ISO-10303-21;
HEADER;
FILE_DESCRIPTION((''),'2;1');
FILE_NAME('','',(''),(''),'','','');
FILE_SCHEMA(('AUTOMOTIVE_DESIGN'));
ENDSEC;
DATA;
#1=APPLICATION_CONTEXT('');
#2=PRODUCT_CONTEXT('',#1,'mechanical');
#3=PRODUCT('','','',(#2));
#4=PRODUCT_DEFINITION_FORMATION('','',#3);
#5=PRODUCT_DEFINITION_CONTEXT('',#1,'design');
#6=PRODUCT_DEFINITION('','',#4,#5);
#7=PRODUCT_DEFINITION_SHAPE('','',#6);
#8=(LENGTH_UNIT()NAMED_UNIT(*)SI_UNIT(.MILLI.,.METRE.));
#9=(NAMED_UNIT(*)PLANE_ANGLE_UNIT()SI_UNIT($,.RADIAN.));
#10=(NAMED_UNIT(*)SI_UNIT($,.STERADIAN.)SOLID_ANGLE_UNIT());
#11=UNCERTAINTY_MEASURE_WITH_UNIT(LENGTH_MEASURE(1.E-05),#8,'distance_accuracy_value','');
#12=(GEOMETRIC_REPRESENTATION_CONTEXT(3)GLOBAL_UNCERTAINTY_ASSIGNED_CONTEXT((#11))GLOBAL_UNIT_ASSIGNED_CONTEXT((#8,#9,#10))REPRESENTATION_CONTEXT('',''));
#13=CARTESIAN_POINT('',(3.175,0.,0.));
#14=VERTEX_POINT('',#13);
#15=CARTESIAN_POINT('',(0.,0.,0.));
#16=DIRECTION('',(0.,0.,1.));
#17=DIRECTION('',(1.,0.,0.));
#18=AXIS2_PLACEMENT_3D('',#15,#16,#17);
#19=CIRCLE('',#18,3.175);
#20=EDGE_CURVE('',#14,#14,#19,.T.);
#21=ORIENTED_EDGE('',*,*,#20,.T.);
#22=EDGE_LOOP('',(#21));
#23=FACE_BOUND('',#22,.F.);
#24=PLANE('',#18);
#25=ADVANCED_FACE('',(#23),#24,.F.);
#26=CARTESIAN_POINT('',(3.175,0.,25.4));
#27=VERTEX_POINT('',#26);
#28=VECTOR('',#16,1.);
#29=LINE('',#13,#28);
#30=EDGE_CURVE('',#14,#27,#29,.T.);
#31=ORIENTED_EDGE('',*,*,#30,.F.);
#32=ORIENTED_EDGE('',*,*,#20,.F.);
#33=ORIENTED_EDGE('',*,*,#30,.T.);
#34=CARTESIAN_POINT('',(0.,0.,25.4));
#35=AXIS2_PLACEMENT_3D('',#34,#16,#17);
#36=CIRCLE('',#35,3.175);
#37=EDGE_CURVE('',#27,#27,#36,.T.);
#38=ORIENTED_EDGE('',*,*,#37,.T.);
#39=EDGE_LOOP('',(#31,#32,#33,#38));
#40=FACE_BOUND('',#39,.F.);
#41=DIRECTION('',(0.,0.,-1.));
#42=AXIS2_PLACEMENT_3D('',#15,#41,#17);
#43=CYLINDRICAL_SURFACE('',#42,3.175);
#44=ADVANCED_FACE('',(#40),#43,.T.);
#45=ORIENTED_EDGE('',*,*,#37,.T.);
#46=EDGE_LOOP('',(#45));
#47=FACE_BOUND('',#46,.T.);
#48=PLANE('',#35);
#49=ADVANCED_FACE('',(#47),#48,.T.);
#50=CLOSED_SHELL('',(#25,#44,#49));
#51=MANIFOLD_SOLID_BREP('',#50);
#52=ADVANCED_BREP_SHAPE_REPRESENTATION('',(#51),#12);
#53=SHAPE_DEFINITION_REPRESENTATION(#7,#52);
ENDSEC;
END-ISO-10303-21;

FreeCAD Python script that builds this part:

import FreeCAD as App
import Part
import Sketcher
Q = App.Units.Quantity

doc = App.newDocument("Part")
body = doc.addObject("PartDesign::Body", "Body")

sketch1 = body.newObject("Sketcher::SketchObject", "Sketch")
sketch1.AttachmentSupport = (doc.getObject("XY_Plane"), [""])
sketch1.MapMode = "FlatFace"
sketch1.addGeometry(Part.Circle(App.Vector(0, 0, 0), App.Vector(0, 0, 1), 3.2), False)
sketch1.addConstraint(Sketcher.Constraint("Coincident", 0, 3, -1, 1))
sketch1.addConstraint(Sketcher.Constraint("Diameter", 0, Q("0.25 in")))
pad1 = body.newObject("PartDesign::Pad", "Pad")
pad1.Profile = sketch1
pad1.Length = Q("1 in")

doc.recompute()
